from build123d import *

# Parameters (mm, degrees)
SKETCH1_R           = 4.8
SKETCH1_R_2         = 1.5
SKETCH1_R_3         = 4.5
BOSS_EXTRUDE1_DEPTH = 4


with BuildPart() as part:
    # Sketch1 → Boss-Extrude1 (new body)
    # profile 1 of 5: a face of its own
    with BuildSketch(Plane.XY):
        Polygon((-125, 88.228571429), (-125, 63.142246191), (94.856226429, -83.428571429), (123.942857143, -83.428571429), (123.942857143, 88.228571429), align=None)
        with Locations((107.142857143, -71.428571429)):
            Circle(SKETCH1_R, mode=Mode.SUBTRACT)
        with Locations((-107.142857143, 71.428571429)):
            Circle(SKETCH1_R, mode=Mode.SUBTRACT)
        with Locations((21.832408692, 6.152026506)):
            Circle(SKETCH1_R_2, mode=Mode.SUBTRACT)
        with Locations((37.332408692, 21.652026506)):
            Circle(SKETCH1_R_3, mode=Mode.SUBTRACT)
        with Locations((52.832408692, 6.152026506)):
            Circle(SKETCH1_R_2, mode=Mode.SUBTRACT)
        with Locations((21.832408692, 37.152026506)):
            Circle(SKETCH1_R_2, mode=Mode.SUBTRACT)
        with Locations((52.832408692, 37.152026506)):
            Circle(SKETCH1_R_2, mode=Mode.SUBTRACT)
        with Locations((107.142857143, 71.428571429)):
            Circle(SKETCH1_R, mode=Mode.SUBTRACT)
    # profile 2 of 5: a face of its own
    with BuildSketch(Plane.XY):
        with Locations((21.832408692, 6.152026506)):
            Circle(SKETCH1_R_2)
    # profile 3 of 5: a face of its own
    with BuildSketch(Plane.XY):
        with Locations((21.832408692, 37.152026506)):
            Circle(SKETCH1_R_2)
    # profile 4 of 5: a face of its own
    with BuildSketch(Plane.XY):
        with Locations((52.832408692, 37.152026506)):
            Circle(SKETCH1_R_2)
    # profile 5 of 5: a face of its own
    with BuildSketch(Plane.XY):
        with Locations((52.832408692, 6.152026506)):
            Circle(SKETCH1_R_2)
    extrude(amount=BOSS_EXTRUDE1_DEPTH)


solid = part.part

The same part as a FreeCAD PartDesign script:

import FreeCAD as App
import Part
import Sketcher
from FreeCAD import Vector


def add_polygon(sketch, points):
    """Adds a closed chain of lines whose ends are joined by coincident constraints."""
    first, n = sketch.GeometryCount, len(points)
    for a, b in zip(points, points[1:] + points[:1]):
        sketch.addGeometry(Part.LineSegment(App.Vector(*a, 0), App.Vector(*b, 0)), False)
    for i in range(n):
        sketch.addConstraint(Sketcher.Constraint("Coincident", first + i, 2, first + (i + 1) % n, 1))

doc = App.newDocument("Part")
body = doc.addObject("PartDesign::Body", "Body")

# Sketch on XY plane
sketch1 = body.newObject("Sketcher::SketchObject", "Sketch")
sketch1.AttachmentSupport = (doc.getObject("XY_Plane"), [""])
sketch1.MapMode = "FlatFace"
add_polygon(sketch1, [(-125, 88.228571), (-125, 63.142246), (94.856226, -83.428571), (123.942857, -83.428571), (123.942857, 88.228571)])  # lines 0-4
sketch1.addGeometry(Part.Circle(Vector(107.142857, -71.428571, 0), Vector(0, 0, 1), 4.8), False)  # 5
sketch1.addGeometry(Part.Circle(Vector(-107.142857, 71.428571, 0), Vector(0, 0, 1), 4.8), False)  # 6
sketch1.addGeometry(Part.Circle(Vector(37.332409, 21.652027, 0), Vector(0, 0, 1), 4.5), False)  # 7
sketch1.addGeometry(Part.Circle(Vector(107.142857, 71.428571, 0), Vector(0, 0, 1), 4.8), False)  # 8
sketch1.addConstraint([
    Sketcher.Constraint("Vertical", 0),
    Sketcher.Constraint("Horizontal", 2),
    Sketcher.Constraint("Vertical", 3),
    Sketcher.Constraint("Horizontal", 4),
    Sketcher.Constraint("Equal", 5, 6),
    Sketcher.Constraint("Equal", 6, 8),
    Sketcher.Constraint("Symmetric", 5, 3, 6, 3, -1, 1),
    Sketcher.Constraint("Symmetric", 6, 3, 8, 3, -2),
    Sketcher.Constraint("Diameter", 7, 9.0),
    Sketcher.Constraint("Diameter", 5, 9.6),
    Sketcher.Constraint("DistanceX", 0, 2, -1, 1, 125.0),
    Sketcher.Constraint("DistanceY", 1, 2, 5, 3, 12.0),
    Sketcher.Constraint("DistanceX", 5, 3, 2, 2, 16.8),
    Sketcher.Constraint("DistanceY", 8, 3, 3, 2, 16.8),
    Sketcher.Constraint("Distance", 1, 264.234299),
    Sketcher.Constraint("DistanceX", 2, 1, 2, 2, 29.086631),
    Sketcher.Constraint("DistanceX", 4, 2, 4, 1, 248.942857),
    Sketcher.Constraint("DistanceY", 0, 2, 0, 1, 25.086325),
    Sketcher.Constraint("DistanceX", -1, 1, 7, 3, 37.332409),
    Sketcher.Constraint("DistanceY", 7, 3, 0, 2, 41.49022),
])
pad1 = body.newObject("PartDesign::Pad", "Pad")
pad1.Profile = sketch1
pad1.Length = 4

doc.recompute()
